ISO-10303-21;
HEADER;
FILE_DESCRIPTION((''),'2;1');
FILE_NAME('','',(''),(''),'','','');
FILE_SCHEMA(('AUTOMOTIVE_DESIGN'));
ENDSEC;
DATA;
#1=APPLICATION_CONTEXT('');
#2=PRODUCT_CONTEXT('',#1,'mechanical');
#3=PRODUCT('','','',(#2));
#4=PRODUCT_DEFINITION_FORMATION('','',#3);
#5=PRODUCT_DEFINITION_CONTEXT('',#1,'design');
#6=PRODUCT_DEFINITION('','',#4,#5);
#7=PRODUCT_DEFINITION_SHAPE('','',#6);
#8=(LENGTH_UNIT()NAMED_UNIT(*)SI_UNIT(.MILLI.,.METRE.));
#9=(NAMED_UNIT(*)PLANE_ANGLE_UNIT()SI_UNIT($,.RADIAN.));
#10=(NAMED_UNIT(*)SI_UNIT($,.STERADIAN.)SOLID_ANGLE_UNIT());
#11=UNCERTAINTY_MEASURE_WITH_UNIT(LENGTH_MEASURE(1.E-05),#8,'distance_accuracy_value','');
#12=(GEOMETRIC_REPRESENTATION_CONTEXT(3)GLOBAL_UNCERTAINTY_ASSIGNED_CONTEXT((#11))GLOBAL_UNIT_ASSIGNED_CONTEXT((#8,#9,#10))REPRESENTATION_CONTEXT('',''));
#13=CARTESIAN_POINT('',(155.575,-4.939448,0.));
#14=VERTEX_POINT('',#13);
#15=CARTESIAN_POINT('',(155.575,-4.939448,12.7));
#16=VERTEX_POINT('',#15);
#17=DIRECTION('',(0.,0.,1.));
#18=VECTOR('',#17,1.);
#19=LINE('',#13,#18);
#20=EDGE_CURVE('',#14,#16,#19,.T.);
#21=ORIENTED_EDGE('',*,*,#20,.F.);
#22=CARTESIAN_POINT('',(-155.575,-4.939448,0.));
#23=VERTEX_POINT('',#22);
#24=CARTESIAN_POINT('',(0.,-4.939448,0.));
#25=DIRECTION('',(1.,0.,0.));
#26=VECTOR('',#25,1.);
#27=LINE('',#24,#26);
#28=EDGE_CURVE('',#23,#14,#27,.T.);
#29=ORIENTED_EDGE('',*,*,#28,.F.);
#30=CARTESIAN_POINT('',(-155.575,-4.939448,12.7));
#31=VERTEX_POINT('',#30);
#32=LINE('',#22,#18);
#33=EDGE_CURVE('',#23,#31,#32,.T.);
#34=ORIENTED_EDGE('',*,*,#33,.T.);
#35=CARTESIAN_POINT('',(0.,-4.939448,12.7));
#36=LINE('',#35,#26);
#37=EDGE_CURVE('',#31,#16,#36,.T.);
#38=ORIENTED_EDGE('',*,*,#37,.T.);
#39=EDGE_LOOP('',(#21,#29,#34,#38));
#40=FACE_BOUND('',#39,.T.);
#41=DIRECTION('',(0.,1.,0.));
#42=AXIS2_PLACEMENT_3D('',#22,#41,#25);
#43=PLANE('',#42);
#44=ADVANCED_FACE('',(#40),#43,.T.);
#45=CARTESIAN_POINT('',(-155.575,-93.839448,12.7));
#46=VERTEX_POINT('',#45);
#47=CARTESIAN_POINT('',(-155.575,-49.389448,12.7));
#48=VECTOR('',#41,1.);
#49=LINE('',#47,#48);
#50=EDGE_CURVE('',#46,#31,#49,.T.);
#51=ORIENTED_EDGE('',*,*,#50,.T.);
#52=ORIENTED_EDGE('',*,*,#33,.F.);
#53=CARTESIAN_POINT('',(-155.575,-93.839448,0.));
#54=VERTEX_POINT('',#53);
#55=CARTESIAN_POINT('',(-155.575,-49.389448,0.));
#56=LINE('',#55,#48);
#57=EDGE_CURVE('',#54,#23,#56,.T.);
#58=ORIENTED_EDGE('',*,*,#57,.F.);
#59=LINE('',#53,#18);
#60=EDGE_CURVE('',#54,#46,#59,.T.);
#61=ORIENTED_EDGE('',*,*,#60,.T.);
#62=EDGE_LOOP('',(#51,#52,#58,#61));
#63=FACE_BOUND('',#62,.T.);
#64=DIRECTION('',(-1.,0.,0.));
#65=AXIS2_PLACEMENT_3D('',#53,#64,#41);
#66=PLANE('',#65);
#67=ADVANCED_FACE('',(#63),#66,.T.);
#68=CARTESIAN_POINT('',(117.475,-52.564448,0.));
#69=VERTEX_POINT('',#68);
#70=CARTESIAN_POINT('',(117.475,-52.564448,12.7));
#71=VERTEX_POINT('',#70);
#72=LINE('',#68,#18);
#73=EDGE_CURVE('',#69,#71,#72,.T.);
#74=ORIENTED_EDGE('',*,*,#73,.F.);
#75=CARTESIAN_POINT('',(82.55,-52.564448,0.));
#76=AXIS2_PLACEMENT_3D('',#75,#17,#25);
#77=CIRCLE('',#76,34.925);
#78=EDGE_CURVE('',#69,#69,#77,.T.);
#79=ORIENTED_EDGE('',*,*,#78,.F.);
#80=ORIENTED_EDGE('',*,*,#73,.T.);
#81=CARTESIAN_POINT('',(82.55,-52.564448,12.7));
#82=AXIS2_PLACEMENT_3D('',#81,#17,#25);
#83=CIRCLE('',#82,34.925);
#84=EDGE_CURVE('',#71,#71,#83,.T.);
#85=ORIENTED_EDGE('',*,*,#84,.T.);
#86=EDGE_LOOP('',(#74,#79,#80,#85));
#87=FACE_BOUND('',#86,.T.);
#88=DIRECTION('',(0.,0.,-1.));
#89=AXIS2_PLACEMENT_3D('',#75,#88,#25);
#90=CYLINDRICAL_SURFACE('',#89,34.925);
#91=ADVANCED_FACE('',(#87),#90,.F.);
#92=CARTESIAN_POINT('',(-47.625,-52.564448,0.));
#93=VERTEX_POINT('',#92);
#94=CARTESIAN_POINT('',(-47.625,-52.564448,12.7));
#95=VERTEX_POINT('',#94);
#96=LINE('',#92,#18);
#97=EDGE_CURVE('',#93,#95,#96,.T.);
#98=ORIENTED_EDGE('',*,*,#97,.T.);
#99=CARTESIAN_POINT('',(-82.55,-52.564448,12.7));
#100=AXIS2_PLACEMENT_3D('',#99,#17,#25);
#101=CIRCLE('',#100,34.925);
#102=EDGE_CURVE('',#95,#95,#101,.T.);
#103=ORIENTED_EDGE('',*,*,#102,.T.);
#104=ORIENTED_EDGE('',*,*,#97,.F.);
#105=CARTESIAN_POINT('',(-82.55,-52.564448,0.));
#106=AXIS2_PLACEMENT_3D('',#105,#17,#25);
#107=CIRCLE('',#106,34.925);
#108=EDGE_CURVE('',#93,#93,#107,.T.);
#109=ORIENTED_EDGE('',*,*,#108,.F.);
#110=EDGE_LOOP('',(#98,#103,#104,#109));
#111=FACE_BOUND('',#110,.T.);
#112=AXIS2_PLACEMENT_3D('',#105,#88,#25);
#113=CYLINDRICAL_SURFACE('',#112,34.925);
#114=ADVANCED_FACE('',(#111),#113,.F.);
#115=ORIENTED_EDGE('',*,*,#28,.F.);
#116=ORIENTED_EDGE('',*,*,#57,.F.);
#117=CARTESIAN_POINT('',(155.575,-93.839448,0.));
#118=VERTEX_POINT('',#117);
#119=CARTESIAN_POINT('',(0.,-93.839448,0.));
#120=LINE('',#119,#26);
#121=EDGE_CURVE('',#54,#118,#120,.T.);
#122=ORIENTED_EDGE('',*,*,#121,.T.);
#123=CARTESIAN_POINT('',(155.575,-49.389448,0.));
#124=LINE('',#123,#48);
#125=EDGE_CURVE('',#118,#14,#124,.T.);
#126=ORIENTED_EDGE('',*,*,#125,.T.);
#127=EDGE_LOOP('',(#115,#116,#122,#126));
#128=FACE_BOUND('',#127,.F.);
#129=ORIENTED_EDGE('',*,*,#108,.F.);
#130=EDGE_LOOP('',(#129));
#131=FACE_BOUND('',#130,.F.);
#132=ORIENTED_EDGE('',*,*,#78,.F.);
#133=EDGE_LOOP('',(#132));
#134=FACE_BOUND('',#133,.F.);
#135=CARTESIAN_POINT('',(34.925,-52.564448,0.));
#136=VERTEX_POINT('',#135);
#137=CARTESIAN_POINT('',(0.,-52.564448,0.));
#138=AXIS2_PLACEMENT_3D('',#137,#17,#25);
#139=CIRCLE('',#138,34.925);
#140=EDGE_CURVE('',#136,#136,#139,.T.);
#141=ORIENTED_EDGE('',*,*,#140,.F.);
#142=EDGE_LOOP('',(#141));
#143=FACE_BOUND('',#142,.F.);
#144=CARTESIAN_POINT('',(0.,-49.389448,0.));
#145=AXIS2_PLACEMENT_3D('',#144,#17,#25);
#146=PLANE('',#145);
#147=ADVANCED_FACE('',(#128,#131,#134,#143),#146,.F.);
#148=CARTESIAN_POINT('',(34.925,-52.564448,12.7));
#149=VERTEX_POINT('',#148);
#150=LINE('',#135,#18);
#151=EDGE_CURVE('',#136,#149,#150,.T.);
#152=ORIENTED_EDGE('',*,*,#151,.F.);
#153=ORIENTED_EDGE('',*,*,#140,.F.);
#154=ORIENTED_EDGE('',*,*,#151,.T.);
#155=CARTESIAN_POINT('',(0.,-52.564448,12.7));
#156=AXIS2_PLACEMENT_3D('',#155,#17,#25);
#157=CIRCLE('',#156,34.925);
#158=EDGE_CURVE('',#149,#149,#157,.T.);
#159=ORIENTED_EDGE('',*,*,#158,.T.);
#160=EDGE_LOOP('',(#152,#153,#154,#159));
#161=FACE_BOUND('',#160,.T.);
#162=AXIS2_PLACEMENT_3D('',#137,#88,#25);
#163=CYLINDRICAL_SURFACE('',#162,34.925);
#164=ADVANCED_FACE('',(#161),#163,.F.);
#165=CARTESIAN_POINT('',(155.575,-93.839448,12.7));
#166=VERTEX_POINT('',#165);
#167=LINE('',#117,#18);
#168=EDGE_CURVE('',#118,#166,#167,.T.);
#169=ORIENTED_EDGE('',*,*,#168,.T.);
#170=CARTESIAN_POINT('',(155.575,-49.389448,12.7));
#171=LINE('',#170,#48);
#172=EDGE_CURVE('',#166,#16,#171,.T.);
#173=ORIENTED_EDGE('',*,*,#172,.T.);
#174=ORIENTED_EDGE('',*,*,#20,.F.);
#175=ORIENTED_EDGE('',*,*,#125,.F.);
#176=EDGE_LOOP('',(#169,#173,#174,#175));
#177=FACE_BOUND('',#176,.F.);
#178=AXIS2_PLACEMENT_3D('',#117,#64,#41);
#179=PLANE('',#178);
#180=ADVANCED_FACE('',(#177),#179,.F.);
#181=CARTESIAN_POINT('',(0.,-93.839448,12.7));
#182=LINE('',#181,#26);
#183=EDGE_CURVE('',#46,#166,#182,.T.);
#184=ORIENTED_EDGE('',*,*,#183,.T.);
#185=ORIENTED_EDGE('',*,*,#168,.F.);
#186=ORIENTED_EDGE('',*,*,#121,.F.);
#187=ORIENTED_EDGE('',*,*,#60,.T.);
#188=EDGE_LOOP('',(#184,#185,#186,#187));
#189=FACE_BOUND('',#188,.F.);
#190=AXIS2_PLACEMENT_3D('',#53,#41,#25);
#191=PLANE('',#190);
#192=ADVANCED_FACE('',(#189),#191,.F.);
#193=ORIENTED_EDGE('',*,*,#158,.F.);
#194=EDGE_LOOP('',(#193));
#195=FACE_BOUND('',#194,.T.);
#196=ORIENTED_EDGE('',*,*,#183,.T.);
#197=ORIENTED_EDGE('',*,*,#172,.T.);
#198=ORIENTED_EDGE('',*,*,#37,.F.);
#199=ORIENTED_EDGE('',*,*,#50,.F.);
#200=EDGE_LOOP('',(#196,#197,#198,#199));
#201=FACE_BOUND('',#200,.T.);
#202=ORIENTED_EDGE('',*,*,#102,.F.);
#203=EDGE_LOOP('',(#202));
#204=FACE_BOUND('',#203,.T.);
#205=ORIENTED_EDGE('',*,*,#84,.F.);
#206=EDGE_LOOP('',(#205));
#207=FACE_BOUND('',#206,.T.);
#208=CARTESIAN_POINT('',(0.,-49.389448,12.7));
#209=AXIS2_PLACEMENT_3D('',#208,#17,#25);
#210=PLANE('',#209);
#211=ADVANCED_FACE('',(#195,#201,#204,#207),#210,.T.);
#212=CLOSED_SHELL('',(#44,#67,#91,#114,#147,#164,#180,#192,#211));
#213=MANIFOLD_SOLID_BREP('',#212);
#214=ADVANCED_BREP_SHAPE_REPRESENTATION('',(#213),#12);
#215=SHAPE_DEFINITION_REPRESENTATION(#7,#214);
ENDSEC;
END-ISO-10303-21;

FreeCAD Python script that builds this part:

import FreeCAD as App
import Part
import Sketcher

V = App.Vector
Q = App.Units.Quantity


def add_polygon(sketch, points):
    """Adds a closed chain of lines whose ends are joined by coincident constraints."""
    first, n = sketch.GeometryCount, len(points)
    for a, b in zip(points, points[1:] + points[:1]):
        sketch.addGeometry(Part.LineSegment(App.Vector(*a, 0), App.Vector(*b, 0)), False)
    for i in range(n):
        sketch.addConstraint(Sketcher.Constraint("Coincident", first + i, 2, first + (i + 1) % n, 1))

doc = App.newDocument("Part")
body = doc.addObject("PartDesign::Body", "Body")

sketch1 = body.newObject("Sketcher::SketchObject", "Sketch")
sketch1.AttachmentSupport = (doc.getObject("XY_Plane"), [""])
sketch1.MapMode = "FlatFace"
add_polygon(sketch1, [(-156, -5), (-156, -94), (156, -94), (156, -5)])
sketch1.addGeometry(Part.Circle(V(-83, -53, 0), V(0, 0, 1), 35), False)
sketch1.addGeometry(Part.Circle(V(0, -53, 0), V(0, 0, 1), 35), False)
sketch1.addGeometry(Part.Circle(V(83, -53, 0), V(0, 0, 1), 35), False)
sketch1.addConstraint([
    Sketcher.Constraint("Vertical", 0),
    Sketcher.Constraint("Horizontal", 1),
    Sketcher.Constraint("Vertical", 2),
    Sketcher.Constraint("Horizontal", 3),
    Sketcher.Constraint("Equal", 4, 5),
    Sketcher.Constraint("Equal", 5, 6),
    Sketcher.Constraint("Symmetric", 4, 3, 6, 3, -2),
    Sketcher.Constraint("PointOnObject", 5, 3, -2),
    Sketcher.Constraint("Horizontal", 4, 3, 5, 3),
    Sketcher.Constraint("Diameter", 4, Q("2.75 in")),
    Sketcher.Constraint("DistanceY", 0, 2, 0, 1, Q("3.5 in")),
    Sketcher.Constraint("DistanceX", 1, 1, 1, 2, Q("12.25 in")),
    Sketcher.Constraint("DistanceX", 4, 3, 6, 3, Q("6.5 in")),
    Sketcher.Constraint("DistanceX", 0, 2, -1, 1, Q("6.125 in")),
    Sketcher.Constraint("DistanceY", 0, 2, 4, 3, Q("1.625 in")),
    Sketcher.Constraint("DistanceY", 0, 2, -1, 1, Q("93.839448 mm")),
])
pad1 = body.newObject("PartDesign::Pad", "Pad")
pad1.Profile = sketch1
pad1.Length = Q("0.5 in")

doc.recompute()
